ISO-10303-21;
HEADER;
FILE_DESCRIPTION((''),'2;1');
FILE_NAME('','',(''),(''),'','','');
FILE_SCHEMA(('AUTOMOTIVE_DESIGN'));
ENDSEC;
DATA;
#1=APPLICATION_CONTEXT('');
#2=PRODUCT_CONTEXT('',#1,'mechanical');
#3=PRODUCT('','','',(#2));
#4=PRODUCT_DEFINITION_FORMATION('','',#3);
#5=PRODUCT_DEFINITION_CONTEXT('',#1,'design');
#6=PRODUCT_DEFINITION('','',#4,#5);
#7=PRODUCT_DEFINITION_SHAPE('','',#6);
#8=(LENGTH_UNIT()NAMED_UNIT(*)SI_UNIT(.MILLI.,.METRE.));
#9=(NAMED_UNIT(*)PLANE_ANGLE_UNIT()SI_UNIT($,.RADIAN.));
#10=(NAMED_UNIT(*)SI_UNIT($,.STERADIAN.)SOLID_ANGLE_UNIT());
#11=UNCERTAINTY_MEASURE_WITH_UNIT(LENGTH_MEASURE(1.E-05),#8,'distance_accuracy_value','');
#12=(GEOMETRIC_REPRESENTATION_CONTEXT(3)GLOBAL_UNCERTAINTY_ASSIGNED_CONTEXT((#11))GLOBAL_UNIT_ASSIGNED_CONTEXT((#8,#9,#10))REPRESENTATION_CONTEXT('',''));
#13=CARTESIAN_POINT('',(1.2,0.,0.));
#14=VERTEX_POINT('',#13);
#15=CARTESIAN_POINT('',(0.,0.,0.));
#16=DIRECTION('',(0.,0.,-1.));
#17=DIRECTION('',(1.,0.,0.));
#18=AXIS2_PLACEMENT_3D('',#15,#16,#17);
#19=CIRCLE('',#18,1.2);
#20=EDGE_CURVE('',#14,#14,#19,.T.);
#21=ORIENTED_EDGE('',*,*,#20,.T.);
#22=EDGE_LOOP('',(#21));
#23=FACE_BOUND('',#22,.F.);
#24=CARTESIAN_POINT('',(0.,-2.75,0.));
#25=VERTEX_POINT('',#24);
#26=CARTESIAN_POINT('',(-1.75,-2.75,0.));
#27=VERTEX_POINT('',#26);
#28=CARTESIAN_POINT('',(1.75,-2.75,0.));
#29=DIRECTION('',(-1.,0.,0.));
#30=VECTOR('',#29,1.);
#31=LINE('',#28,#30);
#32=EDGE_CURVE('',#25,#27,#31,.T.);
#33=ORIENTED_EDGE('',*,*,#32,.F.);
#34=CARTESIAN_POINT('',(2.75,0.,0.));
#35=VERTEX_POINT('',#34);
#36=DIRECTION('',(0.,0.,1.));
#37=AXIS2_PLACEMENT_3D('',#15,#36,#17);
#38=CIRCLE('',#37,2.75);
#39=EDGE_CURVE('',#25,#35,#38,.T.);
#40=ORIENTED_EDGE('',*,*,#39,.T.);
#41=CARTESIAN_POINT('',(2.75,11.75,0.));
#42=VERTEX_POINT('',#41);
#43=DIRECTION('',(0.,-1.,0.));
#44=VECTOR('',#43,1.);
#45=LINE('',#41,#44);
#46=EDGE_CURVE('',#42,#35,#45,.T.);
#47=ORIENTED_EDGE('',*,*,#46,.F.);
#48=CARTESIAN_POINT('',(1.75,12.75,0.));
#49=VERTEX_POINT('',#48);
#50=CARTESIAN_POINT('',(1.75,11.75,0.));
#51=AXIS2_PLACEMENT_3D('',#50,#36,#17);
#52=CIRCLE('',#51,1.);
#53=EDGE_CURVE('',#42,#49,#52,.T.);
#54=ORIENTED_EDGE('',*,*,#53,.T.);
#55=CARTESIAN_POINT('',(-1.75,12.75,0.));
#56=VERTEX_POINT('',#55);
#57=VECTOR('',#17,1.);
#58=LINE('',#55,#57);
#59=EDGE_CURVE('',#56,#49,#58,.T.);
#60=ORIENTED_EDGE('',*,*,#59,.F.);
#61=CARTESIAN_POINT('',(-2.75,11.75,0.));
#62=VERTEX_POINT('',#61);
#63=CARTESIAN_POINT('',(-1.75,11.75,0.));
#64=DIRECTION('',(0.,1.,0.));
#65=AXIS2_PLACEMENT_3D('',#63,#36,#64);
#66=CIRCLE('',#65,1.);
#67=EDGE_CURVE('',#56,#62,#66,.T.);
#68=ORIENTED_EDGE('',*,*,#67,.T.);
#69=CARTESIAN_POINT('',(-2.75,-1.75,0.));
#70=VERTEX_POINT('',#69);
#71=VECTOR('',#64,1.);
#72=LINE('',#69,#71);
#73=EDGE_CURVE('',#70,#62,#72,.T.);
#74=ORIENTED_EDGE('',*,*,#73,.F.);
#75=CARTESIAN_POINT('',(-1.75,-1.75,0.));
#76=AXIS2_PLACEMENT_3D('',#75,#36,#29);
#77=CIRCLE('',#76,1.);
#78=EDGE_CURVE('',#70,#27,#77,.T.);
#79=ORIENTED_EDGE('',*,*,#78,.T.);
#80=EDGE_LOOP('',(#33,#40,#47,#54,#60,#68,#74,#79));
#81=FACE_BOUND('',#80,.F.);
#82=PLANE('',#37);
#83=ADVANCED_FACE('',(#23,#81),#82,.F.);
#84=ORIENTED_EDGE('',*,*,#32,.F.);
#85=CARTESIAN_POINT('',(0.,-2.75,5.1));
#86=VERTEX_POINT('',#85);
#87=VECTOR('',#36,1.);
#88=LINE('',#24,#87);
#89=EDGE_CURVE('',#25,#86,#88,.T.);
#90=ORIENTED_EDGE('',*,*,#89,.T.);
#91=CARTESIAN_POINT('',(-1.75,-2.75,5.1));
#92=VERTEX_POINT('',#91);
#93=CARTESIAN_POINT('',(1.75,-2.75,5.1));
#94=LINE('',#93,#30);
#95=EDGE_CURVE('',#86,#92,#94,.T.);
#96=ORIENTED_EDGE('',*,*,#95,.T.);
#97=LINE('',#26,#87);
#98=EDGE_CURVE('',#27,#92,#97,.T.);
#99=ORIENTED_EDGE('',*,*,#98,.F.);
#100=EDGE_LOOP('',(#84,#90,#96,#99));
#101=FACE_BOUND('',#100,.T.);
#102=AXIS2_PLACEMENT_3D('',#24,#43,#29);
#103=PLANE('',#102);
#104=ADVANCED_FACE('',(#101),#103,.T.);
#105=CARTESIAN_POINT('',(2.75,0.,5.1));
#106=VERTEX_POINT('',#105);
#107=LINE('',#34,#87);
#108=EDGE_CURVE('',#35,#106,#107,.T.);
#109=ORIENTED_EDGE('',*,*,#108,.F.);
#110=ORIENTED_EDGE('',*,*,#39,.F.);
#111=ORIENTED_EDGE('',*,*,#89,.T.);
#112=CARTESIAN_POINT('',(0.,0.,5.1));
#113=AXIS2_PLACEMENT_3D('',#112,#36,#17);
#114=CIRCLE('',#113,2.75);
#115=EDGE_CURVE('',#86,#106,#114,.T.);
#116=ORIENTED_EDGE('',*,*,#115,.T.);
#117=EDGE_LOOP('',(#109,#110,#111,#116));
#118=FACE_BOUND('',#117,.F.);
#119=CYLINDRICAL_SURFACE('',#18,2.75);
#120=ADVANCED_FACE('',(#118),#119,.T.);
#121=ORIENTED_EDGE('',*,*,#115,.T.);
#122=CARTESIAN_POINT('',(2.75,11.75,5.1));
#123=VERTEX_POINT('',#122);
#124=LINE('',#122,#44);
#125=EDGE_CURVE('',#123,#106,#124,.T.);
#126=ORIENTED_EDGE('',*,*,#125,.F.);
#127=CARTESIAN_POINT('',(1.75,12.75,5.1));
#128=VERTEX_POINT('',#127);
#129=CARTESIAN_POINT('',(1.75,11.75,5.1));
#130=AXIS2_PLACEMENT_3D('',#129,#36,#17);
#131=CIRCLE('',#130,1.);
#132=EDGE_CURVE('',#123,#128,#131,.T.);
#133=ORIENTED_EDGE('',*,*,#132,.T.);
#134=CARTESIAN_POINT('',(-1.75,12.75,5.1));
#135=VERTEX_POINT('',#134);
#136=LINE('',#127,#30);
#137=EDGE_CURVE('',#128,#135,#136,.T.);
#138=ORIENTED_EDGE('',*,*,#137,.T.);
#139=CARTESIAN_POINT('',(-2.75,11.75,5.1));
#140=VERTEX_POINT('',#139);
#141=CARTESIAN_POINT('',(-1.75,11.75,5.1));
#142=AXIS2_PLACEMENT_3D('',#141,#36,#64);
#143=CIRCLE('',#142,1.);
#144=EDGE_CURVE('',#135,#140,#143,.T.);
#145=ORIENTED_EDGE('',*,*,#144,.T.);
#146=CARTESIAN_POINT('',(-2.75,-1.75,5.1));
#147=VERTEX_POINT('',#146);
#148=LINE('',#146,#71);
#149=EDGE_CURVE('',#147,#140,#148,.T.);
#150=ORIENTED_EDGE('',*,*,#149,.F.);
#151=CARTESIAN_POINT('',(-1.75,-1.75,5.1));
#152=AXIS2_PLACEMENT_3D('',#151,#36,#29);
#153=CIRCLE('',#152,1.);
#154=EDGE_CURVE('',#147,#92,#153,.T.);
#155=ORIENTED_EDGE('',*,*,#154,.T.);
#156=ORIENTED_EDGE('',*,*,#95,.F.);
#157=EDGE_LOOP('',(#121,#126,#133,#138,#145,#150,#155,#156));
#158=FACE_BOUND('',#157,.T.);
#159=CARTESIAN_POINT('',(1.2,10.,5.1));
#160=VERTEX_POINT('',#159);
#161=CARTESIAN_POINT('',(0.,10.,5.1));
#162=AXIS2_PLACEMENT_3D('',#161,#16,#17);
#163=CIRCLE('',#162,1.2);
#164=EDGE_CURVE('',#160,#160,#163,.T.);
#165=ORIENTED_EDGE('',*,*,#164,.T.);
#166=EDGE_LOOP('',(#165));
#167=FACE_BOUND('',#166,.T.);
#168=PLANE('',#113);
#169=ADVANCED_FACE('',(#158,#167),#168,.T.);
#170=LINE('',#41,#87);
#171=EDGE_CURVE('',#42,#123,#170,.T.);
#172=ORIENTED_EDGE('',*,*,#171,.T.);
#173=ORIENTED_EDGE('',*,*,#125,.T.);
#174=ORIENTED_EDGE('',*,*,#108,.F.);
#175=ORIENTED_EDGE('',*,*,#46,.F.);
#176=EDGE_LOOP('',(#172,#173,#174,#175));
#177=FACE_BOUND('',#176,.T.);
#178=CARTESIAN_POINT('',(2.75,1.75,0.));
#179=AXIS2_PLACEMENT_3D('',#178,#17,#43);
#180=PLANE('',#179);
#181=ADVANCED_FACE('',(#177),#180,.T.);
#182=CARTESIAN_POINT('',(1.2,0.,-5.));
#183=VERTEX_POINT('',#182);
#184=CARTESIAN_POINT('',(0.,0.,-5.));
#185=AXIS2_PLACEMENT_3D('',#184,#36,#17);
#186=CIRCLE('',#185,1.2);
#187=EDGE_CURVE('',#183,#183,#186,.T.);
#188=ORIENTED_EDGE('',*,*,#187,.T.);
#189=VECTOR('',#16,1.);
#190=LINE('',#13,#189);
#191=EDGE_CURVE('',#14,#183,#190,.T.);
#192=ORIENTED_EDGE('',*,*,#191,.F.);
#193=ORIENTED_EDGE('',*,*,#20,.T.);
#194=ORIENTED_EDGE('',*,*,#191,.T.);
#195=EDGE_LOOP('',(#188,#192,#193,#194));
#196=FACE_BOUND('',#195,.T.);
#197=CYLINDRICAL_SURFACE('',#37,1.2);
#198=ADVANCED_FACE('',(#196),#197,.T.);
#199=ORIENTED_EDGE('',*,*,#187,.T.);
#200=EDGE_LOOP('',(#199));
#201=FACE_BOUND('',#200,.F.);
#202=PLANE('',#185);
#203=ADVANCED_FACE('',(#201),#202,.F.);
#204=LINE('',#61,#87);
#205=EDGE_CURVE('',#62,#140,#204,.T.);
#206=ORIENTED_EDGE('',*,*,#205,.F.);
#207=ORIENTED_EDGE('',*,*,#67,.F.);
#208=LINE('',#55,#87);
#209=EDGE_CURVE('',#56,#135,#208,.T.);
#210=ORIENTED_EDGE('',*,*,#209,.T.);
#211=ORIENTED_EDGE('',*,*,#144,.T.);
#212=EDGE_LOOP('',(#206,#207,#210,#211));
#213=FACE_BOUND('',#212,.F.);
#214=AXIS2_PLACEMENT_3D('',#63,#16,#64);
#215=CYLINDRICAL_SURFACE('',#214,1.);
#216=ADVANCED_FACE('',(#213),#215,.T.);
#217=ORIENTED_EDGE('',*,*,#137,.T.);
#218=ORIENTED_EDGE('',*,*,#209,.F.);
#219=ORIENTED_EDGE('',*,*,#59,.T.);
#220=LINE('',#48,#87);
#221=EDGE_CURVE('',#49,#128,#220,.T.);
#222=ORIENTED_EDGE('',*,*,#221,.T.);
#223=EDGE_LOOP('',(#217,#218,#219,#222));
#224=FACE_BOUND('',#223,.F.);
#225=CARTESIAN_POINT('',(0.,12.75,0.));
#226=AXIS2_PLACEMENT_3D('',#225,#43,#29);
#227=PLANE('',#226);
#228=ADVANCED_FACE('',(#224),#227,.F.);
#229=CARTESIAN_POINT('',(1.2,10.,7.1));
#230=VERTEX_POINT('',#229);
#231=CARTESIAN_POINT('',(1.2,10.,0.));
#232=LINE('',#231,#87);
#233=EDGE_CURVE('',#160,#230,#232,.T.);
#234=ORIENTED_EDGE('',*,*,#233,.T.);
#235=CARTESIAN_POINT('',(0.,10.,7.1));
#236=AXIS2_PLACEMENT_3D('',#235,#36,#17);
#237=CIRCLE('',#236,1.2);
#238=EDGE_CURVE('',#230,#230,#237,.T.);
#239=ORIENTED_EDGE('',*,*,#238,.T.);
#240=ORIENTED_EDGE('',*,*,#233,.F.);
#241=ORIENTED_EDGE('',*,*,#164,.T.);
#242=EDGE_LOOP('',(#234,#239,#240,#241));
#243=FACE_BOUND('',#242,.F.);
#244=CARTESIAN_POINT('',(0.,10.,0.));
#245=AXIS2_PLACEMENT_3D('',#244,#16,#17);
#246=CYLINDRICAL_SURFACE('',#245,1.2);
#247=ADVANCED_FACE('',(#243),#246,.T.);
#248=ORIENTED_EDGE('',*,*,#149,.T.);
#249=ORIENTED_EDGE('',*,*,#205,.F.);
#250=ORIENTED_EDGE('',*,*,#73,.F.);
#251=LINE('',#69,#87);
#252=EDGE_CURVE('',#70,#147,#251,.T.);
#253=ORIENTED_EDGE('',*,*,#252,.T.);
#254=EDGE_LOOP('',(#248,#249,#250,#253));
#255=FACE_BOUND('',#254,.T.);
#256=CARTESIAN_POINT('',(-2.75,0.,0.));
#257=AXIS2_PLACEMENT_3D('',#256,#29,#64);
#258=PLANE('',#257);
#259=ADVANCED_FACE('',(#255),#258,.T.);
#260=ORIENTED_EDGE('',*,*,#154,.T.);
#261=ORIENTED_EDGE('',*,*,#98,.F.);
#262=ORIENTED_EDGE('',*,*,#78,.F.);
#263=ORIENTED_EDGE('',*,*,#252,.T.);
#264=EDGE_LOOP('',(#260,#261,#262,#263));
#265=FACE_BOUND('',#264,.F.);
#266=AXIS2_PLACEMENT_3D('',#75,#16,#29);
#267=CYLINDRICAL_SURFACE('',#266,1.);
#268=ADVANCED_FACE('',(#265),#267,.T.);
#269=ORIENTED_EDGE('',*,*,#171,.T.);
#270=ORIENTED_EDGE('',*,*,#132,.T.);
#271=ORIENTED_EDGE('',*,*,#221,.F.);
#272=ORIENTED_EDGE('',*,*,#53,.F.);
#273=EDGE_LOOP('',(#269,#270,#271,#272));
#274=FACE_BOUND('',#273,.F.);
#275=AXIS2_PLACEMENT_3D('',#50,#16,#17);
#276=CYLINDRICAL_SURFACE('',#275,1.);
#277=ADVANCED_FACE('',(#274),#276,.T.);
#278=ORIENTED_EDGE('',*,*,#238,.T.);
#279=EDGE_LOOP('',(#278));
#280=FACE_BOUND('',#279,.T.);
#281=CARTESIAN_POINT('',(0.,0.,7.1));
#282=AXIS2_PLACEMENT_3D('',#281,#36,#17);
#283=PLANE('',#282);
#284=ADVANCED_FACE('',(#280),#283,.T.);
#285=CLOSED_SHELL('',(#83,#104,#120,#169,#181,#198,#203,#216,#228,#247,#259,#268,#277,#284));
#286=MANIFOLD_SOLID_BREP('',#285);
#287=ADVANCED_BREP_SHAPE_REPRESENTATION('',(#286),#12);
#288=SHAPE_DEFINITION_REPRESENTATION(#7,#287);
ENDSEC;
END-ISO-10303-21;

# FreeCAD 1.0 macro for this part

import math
import FreeCAD as App
import Part
import Sketcher
Q = App.Units.Quantity

doc = App.newDocument("Part")
body = doc.addObject("PartDesign::Body", "Body")

# Sketch on XY plane
sketch1 = body.newObject("Sketcher::SketchObject", "Sketch")
sketch1.AttachmentSupport = (doc.getObject("XY_Plane"), [""])
sketch1.MapMode = "FlatFace"
sketch1.addGeometry(Part.Circle(App.Vector(0, 0, 0), App.Vector(0, 0, 1), 1.2), False)
sketch1.addConstraint(Sketcher.Constraint("Coincident", 0, 3, -1, 1))
sketch1.addConstraint(Sketcher.Constraint("Diameter", 0, Q("2.4 mm")))
pad1 = body.newObject("PartDesign::Pad", "Pad")
pad1.Profile = sketch1
pad1.Length = 5
pad1.Reversed = True

# Sketch on XY plane
sketch2 = body.newObject("Sketcher::SketchObject", "Sketch001")
sketch2.AttachmentSupport = (doc.getObject("XY_Plane"), [""])
sketch2.MapMode = "FlatFace"
sketch2.addGeometry(Part.ArcOfCircle(Part.Circle(App.Vector(0, 0, 0), App.Vector(0, 0, 1), 2.8), math.radians(-90), math.radians(0)), False)
sketch2.addGeometry(Part.LineSegment(App.Vector(2.8, 0, 0), App.Vector(2.8, 11.8, 0)), False)
sketch2.addGeometry(Part.ArcOfCircle(Part.Circle(App.Vector(1.8, 11.8, 0), App.Vector(0, 0, 1), 1), math.radians(0), math.radians(90)), False)
sketch2.addGeometry(Part.LineSegment(App.Vector(1.8, 12.8, 0), App.Vector(-1.8, 12.8, 0)), False)
sketch2.addGeometry(Part.ArcOfCircle(Part.Circle(App.Vector(-1.8, 11.8, 0), App.Vector(0, 0, 1), 1), math.radians(90), math.radians(180)), False)
sketch2.addGeometry(Part.LineSegment(App.Vector(-2.8, 11.8, 0), App.Vector(-2.8, -1.8, 0)), False)
sketch2.addGeometry(Part.ArcOfCircle(Part.Circle(App.Vector(-1.8, -1.8, 0), App.Vector(0, 0, 1), 1), math.radians(180), math.radians(270)), False)
sketch2.addGeometry(Part.LineSegment(App.Vector(-1.8, -2.8, 0), App.Vector(0, -2.8, 0)), False)
sketch2.addConstraint(Sketcher.Constraint("Tangent", 0, 2, 1, 1))
sketch2.addConstraint(Sketcher.Constraint("Tangent", 1, 2, 2, 1))
sketch2.addConstraint(Sketcher.Constraint("Tangent", 2, 2, 3, 1))
sketch2.addConstraint(Sketcher.Constraint("Tangent", 3, 2, 4, 1))
sketch2.addConstraint(Sketcher.Constraint("Tangent", 4, 2, 5, 1))
sketch2.addConstraint(Sketcher.Constraint("Tangent", 5, 2, 6, 1))
sketch2.addConstraint(Sketcher.Constraint("Tangent", 6, 2, 7, 1))
sketch2.addConstraint(Sketcher.Constraint("Tangent", 7, 2, 0, 1))
sketch2.addConstraint(Sketcher.Constraint("Vertical", 1))
sketch2.addConstraint(Sketcher.Constraint("Horizontal", 3))
sketch2.addConstraint(Sketcher.Constraint("Vertical", 5))
sketch2.addConstraint(Sketcher.Constraint("Horizontal", 7))
sketch2.addConstraint(Sketcher.Constraint("Coincident", 0, 3, -1, 1))
sketch2.addConstraint(Sketcher.Constraint("Equal", 2, 4))
sketch2.addConstraint(Sketcher.Constraint("Equal", 4, 6))
sketch2.addConstraint(Sketcher.Constraint("Radius", 2, Q("1 mm")))
sketch2.addConstraint(Sketcher.Constraint("Radius", 0, Q("2.75 mm")))
sketch2.addConstraint(Sketcher.Constraint("DistanceX", 4, 2, 1, 2, Q("5.5 mm")))
sketch2.addConstraint(Sketcher.Constraint("DistanceY", 5, 2, 5, 1, Q("13.5 mm")))
pad2 = body.newObject("PartDesign::Pad", "Pad001")
pad2.Profile = sketch2
pad2.Length = 5.1

# Sketch on XY plane
sketch3 = body.newObject("Sketcher::SketchObject", "Sketch002")
sketch3.AttachmentSupport = (doc.getObject("XY_Plane"), [""])
sketch3.MapMode = "FlatFace"
sketch3.addGeometry(Part.Circle(App.Vector(0, 10, 0), App.Vector(0, 0, 1), 1.2), False)
sketch3.addConstraint(Sketcher.Constraint("PointOnObject", 0, 3, -2))
sketch3.addConstraint(Sketcher.Constraint("Diameter", 0, Q("2.4 mm")))
sketch3.addConstraint(Sketcher.Constraint("DistanceY", -1, 1, 0, 3, Q("10 mm")))
pad3 = body.newObject("PartDesign::Pad", "Pad002")
pad3.Profile = sketch3
pad3.Length = 7.1

doc.recompute()
